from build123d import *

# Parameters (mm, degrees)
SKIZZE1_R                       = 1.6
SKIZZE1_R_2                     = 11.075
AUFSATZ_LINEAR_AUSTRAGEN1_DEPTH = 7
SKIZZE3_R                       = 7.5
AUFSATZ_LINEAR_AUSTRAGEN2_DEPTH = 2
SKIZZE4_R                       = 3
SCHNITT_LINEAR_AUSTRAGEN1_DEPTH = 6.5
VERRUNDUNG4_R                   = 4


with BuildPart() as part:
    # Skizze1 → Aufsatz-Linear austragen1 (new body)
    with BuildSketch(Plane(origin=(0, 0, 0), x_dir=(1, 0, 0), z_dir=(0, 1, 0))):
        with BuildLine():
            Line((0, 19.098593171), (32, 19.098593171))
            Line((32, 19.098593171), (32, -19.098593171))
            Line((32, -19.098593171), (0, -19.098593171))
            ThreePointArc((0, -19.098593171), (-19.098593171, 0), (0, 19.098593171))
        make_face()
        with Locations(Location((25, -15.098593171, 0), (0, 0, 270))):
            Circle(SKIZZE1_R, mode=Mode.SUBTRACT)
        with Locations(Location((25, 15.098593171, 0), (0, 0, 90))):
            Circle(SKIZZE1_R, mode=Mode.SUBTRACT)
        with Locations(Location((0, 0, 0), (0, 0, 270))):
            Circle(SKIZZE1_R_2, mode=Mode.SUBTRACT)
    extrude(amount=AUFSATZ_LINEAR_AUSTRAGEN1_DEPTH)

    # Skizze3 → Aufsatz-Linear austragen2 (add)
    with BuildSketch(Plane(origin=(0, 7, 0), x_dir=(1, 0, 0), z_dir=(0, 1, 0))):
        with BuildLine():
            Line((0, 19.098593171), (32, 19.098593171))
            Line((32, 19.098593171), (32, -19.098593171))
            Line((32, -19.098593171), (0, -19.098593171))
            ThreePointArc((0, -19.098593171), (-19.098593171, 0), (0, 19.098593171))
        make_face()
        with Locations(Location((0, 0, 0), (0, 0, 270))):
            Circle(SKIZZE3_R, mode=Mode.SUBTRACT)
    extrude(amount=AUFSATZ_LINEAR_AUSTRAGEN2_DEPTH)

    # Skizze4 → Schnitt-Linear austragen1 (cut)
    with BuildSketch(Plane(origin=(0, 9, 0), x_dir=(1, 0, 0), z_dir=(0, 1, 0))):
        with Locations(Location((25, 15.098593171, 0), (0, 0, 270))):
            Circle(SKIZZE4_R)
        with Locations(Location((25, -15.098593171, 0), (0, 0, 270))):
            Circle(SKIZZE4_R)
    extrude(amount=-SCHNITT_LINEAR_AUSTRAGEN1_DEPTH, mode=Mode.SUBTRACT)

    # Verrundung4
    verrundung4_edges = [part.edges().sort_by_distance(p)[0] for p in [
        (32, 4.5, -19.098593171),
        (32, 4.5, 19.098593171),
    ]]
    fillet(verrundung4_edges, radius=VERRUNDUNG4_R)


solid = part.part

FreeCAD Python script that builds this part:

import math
import FreeCAD as App
import Part
import Sketcher
from FreeCAD import Vector


def edges_at(feature, points):
    """Names of the edges that pass closest to the given points."""
    edges = feature.Shape.Edges
    near = lambda p: min(range(len(edges)), key=lambda i: edges[i].distToShape(Part.Vertex(*p))[0])
    return sorted({f"Edge{near(p) + 1}" for p in points})

doc = App.newDocument("Part")
body = doc.addObject("PartDesign::Body", "Body")

sketch1 = body.newObject("Sketcher::SketchObject", "Sketch")
sketch1.AttachmentSupport = (doc.getObject("XZ_Plane"), [""])
sketch1.MapMode = "FlatFace"
sketch1.addGeometry(Part.LineSegment(Vector(32, -19.1, 0), Vector(0, -19.1, 0)), False)
sketch1.addGeometry(Part.ArcOfCircle(Part.Circle(Vector(0, 0, 0), Vector(0, 0, 1), 19.1), math.radians(90), math.radians(270)), False)
sketch1.addGeometry(Part.LineSegment(Vector(0, 19.1, 0), Vector(32, 19.1, 0)), False)
sketch1.addGeometry(Part.LineSegment(Vector(32, 19.1, 0), Vector(32, -19.1, 0)), False)
sketch1.addGeometry(Part.Circle(Vector(25, 15.1, 0), Vector(0, 0, 1), 1.6), False)
sketch1.addGeometry(Part.Circle(Vector(25, -15.1, 0), Vector(0, 0, 1), 1.6), False)
sketch1.addGeometry(Part.Circle(Vector(0, 0, 0), Vector(0, 0, 1), 11.1), False)
sketch1.addConstraint(Sketcher.Constraint("Tangent", 0, 2, 1, 2))
sketch1.addConstraint(Sketcher.Constraint("Tangent", 1, 1, 2, 1))
sketch1.addConstraint(Sketcher.Constraint("Coincident", 2, 2, 3, 1))
sketch1.addConstraint(Sketcher.Constraint("Coincident", 3, 2, 0, 1))
sketch1.addConstraint(Sketcher.Constraint("Horizontal", 0))
sketch1.addConstraint(Sketcher.Constraint("Horizontal", 2))
sketch1.addConstraint(Sketcher.Constraint("Vertical", 3))
sketch1.addConstraint(Sketcher.Constraint("Coincident", 1, 3, -1, 1))
sketch1.addConstraint(Sketcher.Constraint("Coincident", 6, 3, -1, 1))
sketch1.addConstraint(Sketcher.Constraint("Equal", 4, 5))
sketch1.addConstraint(Sketcher.Constraint("Symmetric", 4, 3, 5, 3, -1))
sketch1.addConstraint(Sketcher.Constraint("Diameter", 4, 3.2))
sketch1.addConstraint(Sketcher.Constraint("Diameter", 6, 22.15))
sketch1.addConstraint(Sketcher.Constraint("DistanceX", 0, 2, 0, 1, 32.0))
sketch1.addConstraint(Sketcher.Constraint("DistanceX", -1, 1, 4, 3, 25.0))
sketch1.addConstraint(Sketcher.Constraint("DistanceY", 0, 2, 5, 3, 4.0))
sketch1.addConstraint(Sketcher.Constraint("Radius", 1, 19.098593))
pad1 = body.newObject("PartDesign::Pad", "Pad")
pad1.Profile = sketch1
pad1.Length = 7
pad1.Reversed = True

sketch2 = body.newObject("Sketcher::SketchObject", "Sketch001")
sketch2.AttachmentSupport = (doc.getObject("XZ_Plane"), [""])
sketch2.MapMode = "FlatFace"
sketch2.AttachmentOffset = App.Placement(Vector(0, 0, -7), App.Rotation())
sketch2.addGeometry(Part.LineSegment(Vector(32, -19, 0), Vector(0, -19, 0)), False)
sketch2.addGeometry(Part.ArcOfCircle(Part.Circle(Vector(0, 0, 0), Vector(0, 0, 1), 19), math.radians(90), math.radians(270)), False)
sketch2.addGeometry(Part.LineSegment(Vector(0, 19, 0), Vector(32, 19, 0)), False)
sketch2.addGeometry(Part.LineSegment(Vector(32, 19, 0), Vector(32, -19, 0)), False)
sketch2.addGeometry(Part.Circle(Vector(0, 0, 0), Vector(0, 0, 1), 8), False)
sketch2.addConstraint(Sketcher.Constraint("Tangent", 0, 2, 1, 2))
sketch2.addConstraint(Sketcher.Constraint("Tangent", 1, 1, 2, 1))
sketch2.addConstraint(Sketcher.Constraint("Coincident", 2, 2, 3, 1))
sketch2.addConstraint(Sketcher.Constraint("Coincident", 3, 2, 0, 1))
sketch2.addConstraint(Sketcher.Constraint("Horizontal", 0))
sketch2.addConstraint(Sketcher.Constraint("Horizontal", 2))
sketch2.addConstraint(Sketcher.Constraint("Vertical", 3))
sketch2.addConstraint(Sketcher.Constraint("Coincident", 1, 3, -1, 1))
sketch2.addConstraint(Sketcher.Constraint("Coincident", 4, 3, -1, 1))
sketch2.addConstraint(Sketcher.Constraint("Diameter", 4, 15.0))
sketch2.addConstraint(Sketcher.Constraint("DistanceX", 0, 2, 0, 1, 32.0))
sketch2.addConstraint(Sketcher.Constraint("Radius", 1, 19.098593))
pad2 = body.newObject("PartDesign::Pad", "Pad001")
pad2.Profile = sketch2
pad2.Length = 2
pad2.Reversed = True

sketch3 = body.newObject("Sketcher::SketchObject", "Sketch002")
sketch3.AttachmentSupport = (doc.getObject("XZ_Plane"), [""])
sketch3.MapMode = "FlatFace"
sketch3.AttachmentOffset = App.Placement(Vector(0, 0, -9), App.Rotation())
sketch3.addGeometry(Part.Circle(Vector(25, -15.1, 0), Vector(0, 0, 1), 3), False)
sketch3.addGeometry(Part.Circle(Vector(25, 15.1, 0), Vector(0, 0, 1), 3), False)
sketch3.addConstraint(Sketcher.Constraint("Equal", 0, 1))
sketch3.addConstraint(Sketcher.Constraint("Symmetric", 0, 3, 1, 3, -1))
sketch3.addConstraint(Sketcher.Constraint("Diameter", 0, 6.0))
sketch3.addConstraint(Sketcher.Constraint("DistanceX", -1, 1, 0, 3, 25.0))
sketch3.addConstraint(Sketcher.Constraint("DistanceY", 0, 3, -1, 1, 15.098593))
pocket1 = body.newObject("PartDesign::Pocket", "Pocket")
pocket1.Profile = sketch3
pocket1.Length = 6.5
pocket1.Reversed = True
doc.recompute()

fillet = body.newObject("PartDesign::Fillet", "Fillet")
fillet.Base = (pocket1, edges_at(pocket1, [(32, 4.5, -19.099), (32, 4.5, 19.099)]))
fillet.Radius = 4

doc.recompute()
